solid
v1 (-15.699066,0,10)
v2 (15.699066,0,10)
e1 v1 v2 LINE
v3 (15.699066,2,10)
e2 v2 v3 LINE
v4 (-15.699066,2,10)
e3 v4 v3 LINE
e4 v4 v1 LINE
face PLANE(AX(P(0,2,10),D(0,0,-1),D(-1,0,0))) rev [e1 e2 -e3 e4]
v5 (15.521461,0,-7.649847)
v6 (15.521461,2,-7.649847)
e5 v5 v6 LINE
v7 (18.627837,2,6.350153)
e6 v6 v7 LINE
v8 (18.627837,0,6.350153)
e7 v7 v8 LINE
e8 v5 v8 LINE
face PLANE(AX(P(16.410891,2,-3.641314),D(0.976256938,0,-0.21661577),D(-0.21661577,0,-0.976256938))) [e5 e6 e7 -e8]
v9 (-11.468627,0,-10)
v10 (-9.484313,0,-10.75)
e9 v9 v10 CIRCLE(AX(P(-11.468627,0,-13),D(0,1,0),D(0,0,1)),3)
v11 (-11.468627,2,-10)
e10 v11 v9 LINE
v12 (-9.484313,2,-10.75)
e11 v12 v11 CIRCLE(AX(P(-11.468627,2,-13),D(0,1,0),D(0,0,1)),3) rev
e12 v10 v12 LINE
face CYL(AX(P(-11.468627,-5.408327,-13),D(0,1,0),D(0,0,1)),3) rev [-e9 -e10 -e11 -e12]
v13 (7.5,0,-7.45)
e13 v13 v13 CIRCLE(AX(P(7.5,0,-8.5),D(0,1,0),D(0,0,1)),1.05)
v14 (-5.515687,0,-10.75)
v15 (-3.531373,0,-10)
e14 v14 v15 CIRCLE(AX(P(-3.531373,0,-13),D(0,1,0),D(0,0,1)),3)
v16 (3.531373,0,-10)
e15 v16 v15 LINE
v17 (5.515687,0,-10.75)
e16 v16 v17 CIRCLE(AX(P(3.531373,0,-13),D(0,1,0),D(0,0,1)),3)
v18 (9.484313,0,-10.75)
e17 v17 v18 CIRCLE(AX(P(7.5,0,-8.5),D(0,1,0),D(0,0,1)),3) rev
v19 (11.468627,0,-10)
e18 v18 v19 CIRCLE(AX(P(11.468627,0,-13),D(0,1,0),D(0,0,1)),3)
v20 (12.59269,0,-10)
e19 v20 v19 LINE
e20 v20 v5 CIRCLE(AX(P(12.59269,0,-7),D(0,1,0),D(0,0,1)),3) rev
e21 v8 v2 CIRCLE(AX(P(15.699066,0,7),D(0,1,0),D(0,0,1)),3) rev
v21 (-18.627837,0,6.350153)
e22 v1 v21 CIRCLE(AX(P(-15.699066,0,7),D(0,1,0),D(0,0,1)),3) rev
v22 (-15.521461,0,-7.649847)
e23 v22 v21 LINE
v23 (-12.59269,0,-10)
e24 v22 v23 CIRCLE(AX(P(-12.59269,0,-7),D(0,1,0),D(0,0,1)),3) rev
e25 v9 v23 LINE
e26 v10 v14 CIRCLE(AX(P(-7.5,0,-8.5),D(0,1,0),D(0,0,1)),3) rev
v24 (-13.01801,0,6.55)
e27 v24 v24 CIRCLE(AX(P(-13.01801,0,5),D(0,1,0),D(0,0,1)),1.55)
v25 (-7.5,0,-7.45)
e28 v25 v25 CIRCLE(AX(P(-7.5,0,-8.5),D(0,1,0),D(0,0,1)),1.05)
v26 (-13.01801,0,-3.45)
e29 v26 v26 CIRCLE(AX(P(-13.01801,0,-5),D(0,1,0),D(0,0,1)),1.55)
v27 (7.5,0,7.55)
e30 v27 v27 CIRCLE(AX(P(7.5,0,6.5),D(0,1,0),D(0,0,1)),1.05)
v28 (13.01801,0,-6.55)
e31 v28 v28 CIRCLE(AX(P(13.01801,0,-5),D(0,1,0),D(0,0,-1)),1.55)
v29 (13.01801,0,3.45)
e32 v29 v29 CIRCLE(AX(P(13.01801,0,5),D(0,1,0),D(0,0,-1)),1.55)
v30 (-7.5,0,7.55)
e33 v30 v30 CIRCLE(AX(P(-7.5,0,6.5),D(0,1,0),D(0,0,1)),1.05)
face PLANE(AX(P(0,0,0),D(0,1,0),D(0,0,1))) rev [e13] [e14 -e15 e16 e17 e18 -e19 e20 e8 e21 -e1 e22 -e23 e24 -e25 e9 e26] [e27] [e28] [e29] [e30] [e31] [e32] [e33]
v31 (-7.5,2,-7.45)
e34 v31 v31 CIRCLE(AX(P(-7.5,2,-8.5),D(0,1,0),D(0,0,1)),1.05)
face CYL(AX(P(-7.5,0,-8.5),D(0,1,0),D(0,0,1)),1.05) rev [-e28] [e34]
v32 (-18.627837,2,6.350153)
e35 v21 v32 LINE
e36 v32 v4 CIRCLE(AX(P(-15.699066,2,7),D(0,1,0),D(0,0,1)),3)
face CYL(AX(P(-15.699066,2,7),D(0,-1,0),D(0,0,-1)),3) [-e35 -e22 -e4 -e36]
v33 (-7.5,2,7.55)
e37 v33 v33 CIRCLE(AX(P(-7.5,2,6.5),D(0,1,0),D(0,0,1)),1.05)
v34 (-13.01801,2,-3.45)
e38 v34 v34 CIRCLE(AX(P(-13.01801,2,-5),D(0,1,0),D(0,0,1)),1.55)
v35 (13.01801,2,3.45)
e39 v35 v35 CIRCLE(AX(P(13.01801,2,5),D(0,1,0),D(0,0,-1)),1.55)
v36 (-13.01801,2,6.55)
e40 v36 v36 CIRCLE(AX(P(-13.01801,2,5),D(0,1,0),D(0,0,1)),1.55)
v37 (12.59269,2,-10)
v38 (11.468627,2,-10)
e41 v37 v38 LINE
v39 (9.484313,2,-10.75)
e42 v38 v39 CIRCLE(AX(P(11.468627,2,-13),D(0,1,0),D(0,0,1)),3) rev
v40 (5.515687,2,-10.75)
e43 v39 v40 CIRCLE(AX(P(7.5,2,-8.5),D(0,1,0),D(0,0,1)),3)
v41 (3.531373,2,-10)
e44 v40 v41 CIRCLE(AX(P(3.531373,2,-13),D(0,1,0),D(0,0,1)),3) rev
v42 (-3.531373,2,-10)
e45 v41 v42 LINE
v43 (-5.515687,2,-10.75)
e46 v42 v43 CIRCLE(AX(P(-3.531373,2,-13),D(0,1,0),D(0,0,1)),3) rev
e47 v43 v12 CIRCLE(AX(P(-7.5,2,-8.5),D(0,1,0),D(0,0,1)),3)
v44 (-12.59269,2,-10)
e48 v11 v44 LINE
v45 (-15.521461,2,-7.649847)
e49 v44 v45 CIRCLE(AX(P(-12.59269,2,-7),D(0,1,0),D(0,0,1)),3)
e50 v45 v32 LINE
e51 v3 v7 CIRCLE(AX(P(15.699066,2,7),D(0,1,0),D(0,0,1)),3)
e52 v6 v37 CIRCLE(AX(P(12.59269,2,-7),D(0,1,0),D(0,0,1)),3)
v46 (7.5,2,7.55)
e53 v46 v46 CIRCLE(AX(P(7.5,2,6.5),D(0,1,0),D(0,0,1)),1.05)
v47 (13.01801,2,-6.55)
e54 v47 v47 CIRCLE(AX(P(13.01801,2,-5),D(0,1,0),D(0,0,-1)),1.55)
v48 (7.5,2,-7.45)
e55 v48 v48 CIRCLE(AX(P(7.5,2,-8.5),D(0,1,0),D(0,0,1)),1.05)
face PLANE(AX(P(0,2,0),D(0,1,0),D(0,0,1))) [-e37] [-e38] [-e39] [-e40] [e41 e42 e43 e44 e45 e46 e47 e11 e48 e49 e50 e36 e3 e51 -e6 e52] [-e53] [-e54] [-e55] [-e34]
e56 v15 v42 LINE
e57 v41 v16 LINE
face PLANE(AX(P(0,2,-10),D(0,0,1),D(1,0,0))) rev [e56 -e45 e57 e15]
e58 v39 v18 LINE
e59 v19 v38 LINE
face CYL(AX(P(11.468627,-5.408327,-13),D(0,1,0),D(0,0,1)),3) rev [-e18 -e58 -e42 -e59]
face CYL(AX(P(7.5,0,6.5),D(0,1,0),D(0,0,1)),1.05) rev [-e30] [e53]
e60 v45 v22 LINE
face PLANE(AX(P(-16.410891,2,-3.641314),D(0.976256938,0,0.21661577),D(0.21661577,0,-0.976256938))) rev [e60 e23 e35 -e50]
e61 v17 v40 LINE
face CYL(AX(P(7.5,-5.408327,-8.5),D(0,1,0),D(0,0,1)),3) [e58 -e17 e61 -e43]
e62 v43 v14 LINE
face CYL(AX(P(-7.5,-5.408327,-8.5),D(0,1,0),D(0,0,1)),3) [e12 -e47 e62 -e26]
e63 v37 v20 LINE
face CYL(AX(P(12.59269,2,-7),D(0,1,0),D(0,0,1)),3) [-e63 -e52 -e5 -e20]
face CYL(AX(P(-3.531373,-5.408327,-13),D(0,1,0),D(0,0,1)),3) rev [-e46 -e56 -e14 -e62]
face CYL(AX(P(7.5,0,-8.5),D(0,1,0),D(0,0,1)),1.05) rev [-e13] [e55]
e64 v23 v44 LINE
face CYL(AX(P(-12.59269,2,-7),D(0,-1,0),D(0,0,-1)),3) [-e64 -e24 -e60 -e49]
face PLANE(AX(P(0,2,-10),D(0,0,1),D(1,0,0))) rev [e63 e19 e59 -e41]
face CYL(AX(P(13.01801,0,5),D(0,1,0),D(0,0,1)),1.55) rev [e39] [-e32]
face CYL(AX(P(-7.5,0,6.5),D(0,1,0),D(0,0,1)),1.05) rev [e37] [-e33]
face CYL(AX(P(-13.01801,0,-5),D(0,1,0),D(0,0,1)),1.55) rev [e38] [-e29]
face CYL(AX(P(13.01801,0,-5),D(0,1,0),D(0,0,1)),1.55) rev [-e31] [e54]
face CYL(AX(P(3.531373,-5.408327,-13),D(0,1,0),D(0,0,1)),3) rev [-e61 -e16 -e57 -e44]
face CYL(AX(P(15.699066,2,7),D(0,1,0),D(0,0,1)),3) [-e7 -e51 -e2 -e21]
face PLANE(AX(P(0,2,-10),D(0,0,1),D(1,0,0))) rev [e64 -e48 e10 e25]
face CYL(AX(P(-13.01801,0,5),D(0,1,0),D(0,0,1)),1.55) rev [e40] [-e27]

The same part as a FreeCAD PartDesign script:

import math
import FreeCAD as App
import Part
import Sketcher
from FreeCAD import Vector
Q = App.Units.Quantity


def edges_at(feature, points):
    """Names of the edges that pass closest to the given points."""
    edges = feature.Shape.Edges
    near = lambda p: min(range(len(edges)), key=lambda i: edges[i].distToShape(Part.Vertex(*p))[0])
    return sorted({f"Edge{near(p) + 1}" for p in points})


def add_polygon(sketch, points):
    """Adds a closed chain of lines whose ends are joined by coincident constraints."""
    first, n = sketch.GeometryCount, len(points)
    for a, b in zip(points, points[1:] + points[:1]):
        sketch.addGeometry(Part.LineSegment(App.Vector(*a, 0), App.Vector(*b, 0)), False)
    for i in range(n):
        sketch.addConstraint(Sketcher.Constraint("Coincident", first + i, 2, first + (i + 1) % n, 1))

doc = App.newDocument("Part")
body = doc.addObject("PartDesign::Body", "Body")

# Sketch on XZ plane
sketch1 = body.newObject("Sketcher::SketchObject", "Sketch")
sketch1.AttachmentSupport = (doc.getObject("XZ_Plane"), [""])
sketch1.MapMode = "FlatFace"
add_polygon(sketch1, [(-19, 10), (19, 10), (15, -10), (-15, -10)])  # lines 0-3
sketch1.addConstraint(Sketcher.Constraint("Horizontal", 0))
sketch1.addConstraint(Sketcher.Constraint("Horizontal", 2))
sketch1.addConstraint(Sketcher.Constraint("Equal", 1, 3))
sketch1.addConstraint(Sketcher.Constraint("DistanceX", 2, 2, 2, 1, Q("30 mm")))
sketch1.addConstraint(Sketcher.Constraint("DistanceY", -1, 1, 0, 2, Q("10 mm")))
sketch1.addConstraint(Sketcher.Constraint("DistanceX", -1, 1, 1, 2, Q("15 mm")))
sketch1.addConstraint(Sketcher.Constraint("DistanceY", 1, 2, -1, 1, Q("10 mm")))
sketch1.addConstraint(Sketcher.Constraint("DistanceX", 0, 1, 0, 2, Q("38.875359 mm")))
pad1 = body.newObject("PartDesign::Pad", "Pad")
pad1.Profile = sketch1
pad1.Length = 2
pad1.Reversed = True

# Sketch on XZ plane
sketch2 = body.newObject("Sketcher::SketchObject", "Sketch001")
sketch2.AttachmentSupport = (doc.getObject("XZ_Plane"), [""])
sketch2.MapMode = "FlatFace"
sketch2.AttachmentOffset = App.Placement(Vector(0, 0, -2), App.Rotation())
sketch2.addGeometry(Part.Circle(Vector(-13, -5, 0), Vector(0, 0, 1), 1.6), False)
sketch2.addGeometry(Part.Circle(Vector(-13, 5, 0), Vector(0, 0, 1), 1.6), False)
sketch2.addGeometry(Part.Circle(Vector(13, 5, 0), Vector(0, 0, 1), 1.6), False)
sketch2.addGeometry(Part.Circle(Vector(13, -5, 0), Vector(0, 0, 1), 1.6), False)
sketch2.addConstraint(Sketcher.Constraint("Equal", 0, 1))
sketch2.addConstraint(Sketcher.Constraint("Equal", 1, 2))
sketch2.addConstraint(Sketcher.Constraint("Equal", 2, 3))
sketch2.addConstraint(Sketcher.Constraint("Symmetric", 0, 3, 2, 3, -1, 1))
sketch2.addConstraint(Sketcher.Constraint("Symmetric", 1, 3, 3, 3, -1, 1))
sketch2.addConstraint(Sketcher.Constraint("Symmetric", 1, 3, 2, 3, -2))
sketch2.addConstraint(Sketcher.Constraint("Diameter", 0, Q("3.1 mm")))
sketch2.addConstraint(Sketcher.Constraint("DistanceY", 0, 3, -1, 1, Q("5 mm")))
sketch2.addConstraint(Sketcher.Constraint("DistanceX", 0, 3, -1, 1, Q("13.01801 mm")))
pocket1 = body.newObject("PartDesign::Pocket", "Pocket")
pocket1.Profile = sketch2
pocket1.Type = "ThroughAll"
pocket1.Reversed = True

# Sketch on XZ plane
sketch3 = body.newObject("Sketcher::SketchObject", "Sketch002")
sketch3.AttachmentSupport = (doc.getObject("XZ_Plane"), [""])
sketch3.MapMode = "FlatFace"
sketch3.AttachmentOffset = App.Placement(Vector(0, 0, -2), App.Rotation())
sketch3.addGeometry(Part.Circle(Vector(-7.5, -8.5, 0), Vector(0, 0, 1), 1.1), False)
sketch3.addGeometry(Part.Circle(Vector(-7.5, 6.5, 0), Vector(0, 0, 1), 1.1), False)
sketch3.addGeometry(Part.Circle(Vector(7.5, 6.5, 0), Vector(0, 0, 1), 1.1), False)
sketch3.addGeometry(Part.Circle(Vector(7.5, -8.5, 0), Vector(0, 0, 1), 1.1), False)
sketch3.addConstraint(Sketcher.Constraint("Equal", 0, 1))
sketch3.addConstraint(Sketcher.Constraint("Equal", 1, 2))
sketch3.addConstraint(Sketcher.Constraint("Equal", 2, 3))
sketch3.addConstraint(Sketcher.Constraint("Symmetric", 1, 3, 2, 3, -2))
sketch3.addConstraint(Sketcher.Constraint("Symmetric", 0, 3, 3, 3, -2))
sketch3.addConstraint(Sketcher.Constraint("Vertical", 0, 3, 1, 3))
sketch3.addConstraint(Sketcher.Constraint("Diameter", 0, Q("2.1 mm")))
sketch3.addConstraint(Sketcher.Constraint("DistanceY", 0, 3, 1, 3, Q("15 mm")))
sketch3.addConstraint(Sketcher.Constraint("DistanceX", 1, 3, 2, 3, Q("15 mm")))
sketch3.addConstraint(Sketcher.Constraint("DistanceY", 0, 3, -1, 1, Q("8.5 mm")))
pocket2 = body.newObject("PartDesign::Pocket", "Pocket001")
pocket2.Profile = sketch3
pocket2.Type = "ThroughAll"
pocket2.Reversed = True
doc.recompute()

fillet = body.newObject("PartDesign::Fillet", "Fillet")
fillet.Base = (pocket2, edges_at(pocket2, [
    (-15, 1, -10),
    (15, 1, -10),
    (19.438, 1, 10),
    (-19.438, 1, 10),
]))
fillet.Radius = 3

# Sketch on XZ plane
sketch4 = body.newObject("Sketcher::SketchObject", "Sketch003")
sketch4.AttachmentSupport = (doc.getObject("XZ_Plane"), [""])
sketch4.MapMode = "FlatFace"
sketch4.AttachmentOffset = App.Placement(Vector(0, 0, -2), App.Rotation())
sketch4.addGeometry(Part.ArcOfCircle(Part.Circle(Vector(-7.5, -8.5, 0), Vector(0, 0, 1), 3), math.radians(-150), math.radians(-30)), False)
sketch4.addGeometry(Part.LineSegment(Vector(-10.1, -10, 0), Vector(-4.9, -10, 0)), False)
sketch4.addGeometry(Part.ArcOfCircle(Part.Circle(Vector(7.5, -8.5, 0), Vector(0, 0, 1), 3), math.radians(-150), math.radians(-30)), False)
sketch4.addGeometry(Part.LineSegment(Vector(4.9, -10, 0), Vector(10.1, -10, 0)), False)
sketch4.addConstraint(Sketcher.Constraint("Coincident", 0, 1, 1, 1))
sketch4.addConstraint(Sketcher.Constraint("Coincident", 1, 2, 0, 2))
sketch4.addConstraint(Sketcher.Constraint("Coincident", 2, 1, 3, 1))
sketch4.addConstraint(Sketcher.Constraint("Coincident", 3, 2, 2, 2))
sketch4.addConstraint(Sketcher.Constraint("Horizontal", 1))
sketch4.addConstraint(Sketcher.Constraint("Horizontal", 3))
sketch4.addConstraint(Sketcher.Constraint("Equal", 0, 2))
sketch4.addConstraint(Sketcher.Constraint("Symmetric", 0, 3, 2, 3, -2))
sketch4.addConstraint(Sketcher.Constraint("Horizontal", 1, 2, 2, 1))
sketch4.addConstraint(Sketcher.Constraint("Radius", 0, Q("3 mm")))
sketch4.addConstraint(Sketcher.Constraint("DistanceY", 0, 1, -1, 1, Q("10 mm")))
sketch4.addConstraint(Sketcher.Constraint("DistanceX", 0, 3, 2, 3, Q("15 mm")))
sketch4.addConstraint(Sketcher.Constraint("DistanceY", 0, 3, -1, 1, Q("8.5 mm")))
pad2 = body.newObject("PartDesign::Pad", "Pad001")
pad2.Profile = sketch4
pad2.Length = 2
doc.recompute()

fillet2 = body.newObject("PartDesign::Fillet", "Fillet001")
fillet2.Base = (pad2, edges_at(pad2, [
    (10.098, 1, -10),
    (4.902, 1, -10),
    (-4.902, 1, -10),
    (-10.098, 1, -10),
]))
fillet2.Radius = 3

doc.recompute()
